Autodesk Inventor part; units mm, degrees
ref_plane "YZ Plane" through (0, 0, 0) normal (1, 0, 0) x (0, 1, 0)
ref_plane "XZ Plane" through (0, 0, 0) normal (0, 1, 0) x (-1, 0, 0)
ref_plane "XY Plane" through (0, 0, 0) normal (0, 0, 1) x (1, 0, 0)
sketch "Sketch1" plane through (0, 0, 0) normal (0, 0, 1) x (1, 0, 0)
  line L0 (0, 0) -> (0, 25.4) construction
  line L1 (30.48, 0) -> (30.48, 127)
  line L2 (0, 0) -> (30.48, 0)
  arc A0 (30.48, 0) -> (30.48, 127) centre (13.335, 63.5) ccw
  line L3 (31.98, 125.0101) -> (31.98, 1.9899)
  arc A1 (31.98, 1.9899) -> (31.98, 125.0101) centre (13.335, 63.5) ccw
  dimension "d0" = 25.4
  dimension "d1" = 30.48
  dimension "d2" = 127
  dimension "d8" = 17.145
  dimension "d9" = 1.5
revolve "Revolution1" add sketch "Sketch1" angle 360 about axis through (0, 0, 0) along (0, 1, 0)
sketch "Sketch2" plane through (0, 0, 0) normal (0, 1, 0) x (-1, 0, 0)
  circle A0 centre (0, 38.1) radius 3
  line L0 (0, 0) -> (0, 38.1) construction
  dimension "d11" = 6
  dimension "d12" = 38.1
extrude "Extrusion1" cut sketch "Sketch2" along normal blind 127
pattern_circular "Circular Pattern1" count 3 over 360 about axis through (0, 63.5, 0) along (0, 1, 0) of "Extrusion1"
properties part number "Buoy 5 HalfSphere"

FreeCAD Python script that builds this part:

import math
import FreeCAD as App
import Part
import Sketcher

V = App.Vector
Q = App.Units.Quantity

doc = App.newDocument("Part")
body = doc.addObject("PartDesign::Body", "Body")

sketch1 = body.newObject("Sketcher::SketchObject", "Sketch")
sketch1.AttachmentSupport = (doc.getObject("XY_Plane"), [""])
sketch1.MapMode = "FlatFace"
sketch1.addGeometry([
    Part.LineSegment(V(30, 127, 0), V(30, 0, 0)),
    Part.ArcOfCircle(Part.Circle(V(13, 64, 0), V(0, 0, 1), 66), math.radians(-75), math.radians(75)),
    Part.LineSegment(V(32, 2, 0), V(32, 125, 0)),
    Part.ArcOfCircle(Part.Circle(V(13, 64, 0), V(0, 0, 1), 64), math.radians(-73), math.radians(73)),
], False)
sketch1.addConstraint([
    Sketcher.Constraint("Coincident", 0, 1, 1, 2),
    Sketcher.Constraint("Coincident", 1, 1, 0, 2),
    Sketcher.Constraint("Coincident", 2, 1, 3, 1),
    Sketcher.Constraint("Coincident", 3, 2, 2, 2),
    Sketcher.Constraint("Vertical", 0),
    Sketcher.Constraint("Vertical", 2),
    Sketcher.Constraint("Coincident", 3, 3, 1, 3),
    Sketcher.Constraint("PointOnObject", 1, 1, -1),
    Sketcher.Constraint("DistanceY", 0, 2, 0, 1, Q("127 mm")),
    Sketcher.Constraint("DistanceX", 1, 1, 2, 1, Q("1.5 mm")),
    Sketcher.Constraint("DistanceX", -1, 1, 0, 1, Q("30.48 mm")),
    Sketcher.Constraint("DistanceX", 1, 3, 0, 1, Q("17.145 mm")),
    Sketcher.Constraint("Radius", 3, Q("64.2739 mm")),
])
revolution = body.newObject("PartDesign::Revolution", "Revolution")
revolution.Profile = sketch1
revolution.ReferenceAxis = (sketch1, ["V_Axis"])
revolution.Angle = 360

sketch2 = body.newObject("Sketcher::SketchObject", "Sketch001")
sketch2.AttachmentSupport = (doc.getObject("XZ_Plane"), [""])
sketch2.MapMode = "FlatFace"
sketch2.addGeometry(Part.Circle(V(0, 38.1, 0), V(0, 0, 1), 3), False)
sketch2.addConstraint([
    Sketcher.Constraint("PointOnObject", 0, 3, -2),
    Sketcher.Constraint("Diameter", 0, Q("6 mm")),
    Sketcher.Constraint("DistanceY", -1, 1, 0, 3, Q("38.1 mm")),
])
pocket1 = body.newObject("PartDesign::Pocket", "Pocket")
pocket1.Profile = sketch2
pocket1.Length = 127
doc.recompute()

polarpattern = body.newObject("PartDesign::PolarPattern", "PolarPattern")
polarpattern.Originals = [pocket1]
polarpattern.Axis = (doc.getObject("Y_Axis"), [""])
polarpattern.Angle = 360
polarpattern.Occurrences = 3
body.Tip = polarpattern

doc.recompute()
